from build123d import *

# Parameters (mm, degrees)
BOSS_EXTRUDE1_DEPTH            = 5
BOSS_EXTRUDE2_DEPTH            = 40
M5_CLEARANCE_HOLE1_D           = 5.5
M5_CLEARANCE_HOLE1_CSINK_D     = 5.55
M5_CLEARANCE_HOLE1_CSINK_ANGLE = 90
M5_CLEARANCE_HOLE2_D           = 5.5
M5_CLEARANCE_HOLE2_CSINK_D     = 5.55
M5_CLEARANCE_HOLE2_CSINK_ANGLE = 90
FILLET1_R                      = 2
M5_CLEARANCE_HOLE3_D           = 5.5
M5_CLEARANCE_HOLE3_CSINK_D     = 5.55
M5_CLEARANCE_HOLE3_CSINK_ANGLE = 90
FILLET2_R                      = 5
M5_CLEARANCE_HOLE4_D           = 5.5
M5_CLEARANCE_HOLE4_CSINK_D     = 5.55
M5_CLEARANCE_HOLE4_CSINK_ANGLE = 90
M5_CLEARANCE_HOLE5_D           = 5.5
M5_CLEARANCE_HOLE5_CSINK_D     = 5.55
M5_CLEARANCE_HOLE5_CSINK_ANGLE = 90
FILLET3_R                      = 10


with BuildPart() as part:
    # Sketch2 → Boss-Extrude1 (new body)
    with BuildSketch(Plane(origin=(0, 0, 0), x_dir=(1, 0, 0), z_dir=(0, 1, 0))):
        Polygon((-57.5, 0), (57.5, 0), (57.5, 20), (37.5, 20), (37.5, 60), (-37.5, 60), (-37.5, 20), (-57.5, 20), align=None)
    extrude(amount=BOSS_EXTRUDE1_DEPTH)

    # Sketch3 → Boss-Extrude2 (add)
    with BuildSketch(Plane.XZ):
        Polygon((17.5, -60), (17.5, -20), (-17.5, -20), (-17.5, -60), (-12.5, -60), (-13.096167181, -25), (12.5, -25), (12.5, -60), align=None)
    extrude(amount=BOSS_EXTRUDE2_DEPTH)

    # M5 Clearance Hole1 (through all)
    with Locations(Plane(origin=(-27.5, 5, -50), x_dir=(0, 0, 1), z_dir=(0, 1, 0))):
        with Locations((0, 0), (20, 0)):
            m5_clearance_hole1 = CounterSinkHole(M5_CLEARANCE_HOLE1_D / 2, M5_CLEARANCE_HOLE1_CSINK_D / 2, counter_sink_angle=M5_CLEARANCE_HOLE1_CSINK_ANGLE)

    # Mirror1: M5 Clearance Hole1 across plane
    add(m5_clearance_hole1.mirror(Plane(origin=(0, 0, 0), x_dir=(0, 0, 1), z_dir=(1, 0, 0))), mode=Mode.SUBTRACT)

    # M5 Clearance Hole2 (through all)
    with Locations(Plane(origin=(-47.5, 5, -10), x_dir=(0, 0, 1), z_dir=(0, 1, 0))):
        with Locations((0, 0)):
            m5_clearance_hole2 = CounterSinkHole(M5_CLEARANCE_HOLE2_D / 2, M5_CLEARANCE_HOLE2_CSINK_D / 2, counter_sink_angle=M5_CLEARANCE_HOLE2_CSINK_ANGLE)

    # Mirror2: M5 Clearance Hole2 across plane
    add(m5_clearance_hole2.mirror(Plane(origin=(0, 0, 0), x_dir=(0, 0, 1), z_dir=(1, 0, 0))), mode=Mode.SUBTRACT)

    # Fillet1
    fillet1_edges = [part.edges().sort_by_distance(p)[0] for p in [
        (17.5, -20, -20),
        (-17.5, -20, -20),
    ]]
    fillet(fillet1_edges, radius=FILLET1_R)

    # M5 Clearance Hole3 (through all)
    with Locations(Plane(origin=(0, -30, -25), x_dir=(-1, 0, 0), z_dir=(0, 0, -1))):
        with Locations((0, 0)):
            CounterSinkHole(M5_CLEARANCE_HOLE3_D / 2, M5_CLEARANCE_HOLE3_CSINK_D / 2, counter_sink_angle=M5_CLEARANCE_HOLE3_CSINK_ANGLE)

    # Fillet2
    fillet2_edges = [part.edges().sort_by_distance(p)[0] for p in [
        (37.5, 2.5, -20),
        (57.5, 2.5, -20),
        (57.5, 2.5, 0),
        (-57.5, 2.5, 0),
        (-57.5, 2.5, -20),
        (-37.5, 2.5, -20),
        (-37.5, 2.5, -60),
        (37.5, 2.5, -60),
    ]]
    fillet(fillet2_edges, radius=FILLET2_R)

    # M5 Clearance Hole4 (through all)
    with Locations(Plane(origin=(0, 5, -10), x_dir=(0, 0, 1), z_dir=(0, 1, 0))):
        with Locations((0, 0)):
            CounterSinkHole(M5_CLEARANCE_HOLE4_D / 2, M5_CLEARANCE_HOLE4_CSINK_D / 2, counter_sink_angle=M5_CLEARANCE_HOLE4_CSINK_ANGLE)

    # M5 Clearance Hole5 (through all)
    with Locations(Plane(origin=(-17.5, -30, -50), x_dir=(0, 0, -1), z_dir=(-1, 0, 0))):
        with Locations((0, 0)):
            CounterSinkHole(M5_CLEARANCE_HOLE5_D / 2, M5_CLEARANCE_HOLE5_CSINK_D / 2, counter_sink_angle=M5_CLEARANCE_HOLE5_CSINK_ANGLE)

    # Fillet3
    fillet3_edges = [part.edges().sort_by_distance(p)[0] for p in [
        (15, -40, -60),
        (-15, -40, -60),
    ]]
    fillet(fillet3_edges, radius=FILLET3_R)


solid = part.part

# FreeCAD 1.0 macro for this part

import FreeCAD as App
import Part
import Sketcher

V = App.Vector
Q = App.Units.Quantity


def edges_at(feature, points):
    """Names of the edges that pass closest to the given points."""
    edges = feature.Shape.Edges
    near = lambda p: min(range(len(edges)), key=lambda i: edges[i].distToShape(Part.Vertex(*p))[0])
    return sorted({f"Edge{near(p) + 1}" for p in points})


def add_polygon(sketch, points):
    """Adds a closed chain of lines whose ends are joined by coincident constraints."""
    first, n = sketch.GeometryCount, len(points)
    for a, b in zip(points, points[1:] + points[:1]):
        sketch.addGeometry(Part.LineSegment(App.Vector(*a, 0), App.Vector(*b, 0)), False)
    for i in range(n):
        sketch.addConstraint(Sketcher.Constraint("Coincident", first + i, 2, first + (i + 1) % n, 1))

doc = App.newDocument("Part")
body = doc.addObject("PartDesign::Body", "Body")

# Sketch on XZ plane
sketch1 = body.newObject("Sketcher::SketchObject", "Sketch")
sketch1.AttachmentSupport = (doc.getObject("XZ_Plane"), [""])
sketch1.MapMode = "FlatFace"
add_polygon(sketch1, [(-58, 0), (58, 0), (58, -20), (38, -20), (38, -60), (-38, -60), (-38, -20), (-58, -20)])  # lines 0-7
sketch1.addConstraint(Sketcher.Constraint("Horizontal", 0))
sketch1.addConstraint(Sketcher.Constraint("Vertical", 1))
sketch1.addConstraint(Sketcher.Constraint("Horizontal", 2))
sketch1.addConstraint(Sketcher.Constraint("Vertical", 3))
sketch1.addConstraint(Sketcher.Constraint("Horizontal", 4))
sketch1.addConstraint(Sketcher.Constraint("Vertical", 5))
sketch1.addConstraint(Sketcher.Constraint("Horizontal", 6))
sketch1.addConstraint(Sketcher.Constraint("Vertical", 7))
sketch1.addConstraint(Sketcher.Constraint("Symmetric", 0, 2, 7, 2, -1, 1))
sketch1.addConstraint(Sketcher.Constraint("Symmetric", 2, 2, 5, 2, -2))
sketch1.addConstraint(Sketcher.Constraint("Equal", 6, 1))
sketch1.addConstraint(Sketcher.Constraint("DistanceX", 0, 1, 0, 2, Q("115 mm")))
sketch1.addConstraint(Sketcher.Constraint("DistanceX", 2, 2, 2, 1, Q("20 mm")))
sketch1.addConstraint(Sketcher.Constraint("DistanceY", 3, 2, 3, 1, Q("40 mm")))
pad1 = body.newObject("PartDesign::Pad", "Pad")
pad1.Profile = sketch1
pad1.Length = 5
pad1.Reversed = True

# Sketch on XZ plane
sketch2 = body.newObject("Sketcher::SketchObject", "Sketch001")
sketch2.AttachmentSupport = (doc.getObject("XZ_Plane"), [""])
sketch2.MapMode = "FlatFace"
add_polygon(sketch2, [(18, -60), (18, -20), (-18, -20), (-18, -60), (-12, -60), (-13, -25), (12, -25), (12, -60)])  # lines 0-7
sketch2.addConstraint(Sketcher.Constraint("Vertical", 0))
sketch2.addConstraint(Sketcher.Constraint("Horizontal", 1))
sketch2.addConstraint(Sketcher.Constraint("Vertical", 2))
sketch2.addConstraint(Sketcher.Constraint("Horizontal", 3))
sketch2.addConstraint(Sketcher.Constraint("Horizontal", 5))
sketch2.addConstraint(Sketcher.Constraint("Vertical", 6))
sketch2.addConstraint(Sketcher.Constraint("Horizontal", 7))
sketch2.addConstraint(Sketcher.Constraint("Symmetric", 3, 2, 6, 2, -2))
sketch2.addConstraint(Sketcher.Constraint("Equal", 3, 7))
sketch2.addConstraint(Sketcher.Constraint("Equal", 1, 6))
sketch2.addConstraint(Sketcher.Constraint("DistanceX", 1, 2, 1, 1, Q("35 mm")))
sketch2.addConstraint(Sketcher.Constraint("DistanceX", 3, 1, 3, 2, Q("5 mm")))
sketch2.addConstraint(Sketcher.Constraint("DistanceY", 0, 1, 0, 2, Q("40 mm")))
sketch2.addConstraint(Sketcher.Constraint("DistanceY", 0, 2, -1, 1, Q("20 mm")))
sketch2.addConstraint(Sketcher.Constraint("DistanceX", 5, 1, 5, 2, Q("25.596167 mm")))
pad2 = body.newObject("PartDesign::Pad", "Pad001")
pad2.Profile = sketch2
pad2.Length = 40

# Sketch on XZ plane
sketch3 = body.newObject("Sketcher::SketchObject", "Sketch002")
sketch3.AttachmentSupport = (doc.getObject("XZ_Plane"), [""])
sketch3.MapMode = "FlatFace"
sketch3.AttachmentOffset = App.Placement(V(0, 0, -5), App.Rotation())
sketch3.addGeometry(Part.Circle(V(-27.5, -50, 0), V(0, 0, 1), 2.8), False)
sketch3.addGeometry(Part.Circle(V(-27.5, -30, 0), V(0, 0, 1), 2.8), False)
sketch3.addConstraint(Sketcher.Constraint("Equal", 0, 1))
sketch3.addConstraint(Sketcher.Constraint("Vertical", 0, 3, 1, 3))
sketch3.addConstraint(Sketcher.Constraint("Diameter", 0, Q("5.5 mm")))
sketch3.addConstraint(Sketcher.Constraint("DistanceY", 0, 3, -1, 1, Q("50 mm")))
sketch3.addConstraint(Sketcher.Constraint("DistanceY", 1, 3, -1, 1, Q("30 mm")))
sketch3.addConstraint(Sketcher.Constraint("DistanceX", 0, 3, -1, 1, Q("27.5 mm")))
doc.recompute()
hole = body.newObject("PartDesign::Hole", "Hole")
hole.Profile = sketch3
hole.ThreadType = "None"
hole.Diameter = 5.5
hole.DepthType = "ThroughAll"
hole.HoleCutType = "Countersink"
hole.HoleCutDiameter = 5.55
hole.HoleCutCountersinkAngle = 90
hole.Reversed = True
doc.recompute()

mirrored = body.newObject("PartDesign::Mirrored", "Mirrored")
mirrored.Originals = [hole]
mirrored.MirrorPlane = (doc.getObject("YZ_Plane"), [""])
body.Tip = mirrored

# Sketch on XZ plane
sketch4 = body.newObject("Sketcher::SketchObject", "Sketch003")
sketch4.AttachmentSupport = (doc.getObject("XZ_Plane"), [""])
sketch4.MapMode = "FlatFace"
sketch4.AttachmentOffset = App.Placement(V(0, 0, -5), App.Rotation())
sketch4.addGeometry(Part.Circle(V(-47.5, -10, 0), V(0, 0, 1), 2.8), False)
sketch4.addConstraint(Sketcher.Constraint("Diameter", 0, Q("5.5 mm")))
sketch4.addConstraint(Sketcher.Constraint("DistanceY", 0, 3, -1, 1, Q("10 mm")))
sketch4.addConstraint(Sketcher.Constraint("DistanceX", 0, 3, -1, 1, Q("47.5 mm")))
doc.recompute()
hole2 = body.newObject("PartDesign::Hole", "Hole001")
hole2.Profile = sketch4
hole2.ThreadType = "None"
hole2.Diameter = 5.5
hole2.DepthType = "ThroughAll"
hole2.HoleCutType = "Countersink"
hole2.HoleCutDiameter = 5.55
hole2.HoleCutCountersinkAngle = 90
hole2.Reversed = True
doc.recompute()

mirrored2 = body.newObject("PartDesign::Mirrored", "Mirrored001")
mirrored2.Originals = [hole2]
mirrored2.MirrorPlane = (doc.getObject("YZ_Plane"), [""])
body.Tip = mirrored2
doc.recompute()

fillet = body.newObject("PartDesign::Fillet", "Fillet")
fillet.Base = (mirrored2, edges_at(mirrored2, [(17.5, -20, -20), (-17.5, -20, -20)]))
fillet.Radius = 2

# Sketch on XY plane
sketch5 = body.newObject("Sketcher::SketchObject", "Sketch004")
sketch5.AttachmentSupport = (doc.getObject("XY_Plane"), [""])
sketch5.MapMode = "FlatFace"
sketch5.AttachmentOffset = App.Placement(V(0, 0, -25), App.Rotation())
sketch5.addGeometry(Part.Circle(V(0, -30, 0), V(0, 0, 1), 2.8), False)
sketch5.addConstraint(Sketcher.Constraint("PointOnObject", 0, 3, -2))
sketch5.addConstraint(Sketcher.Constraint("Diameter", 0, Q("5.5 mm")))
sketch5.addConstraint(Sketcher.Constraint("DistanceY", 0, 3, -1, 1, Q("30 mm")))
doc.recompute()
hole3 = body.newObject("PartDesign::Hole", "Hole002")
hole3.Profile = sketch5
hole3.ThreadType = "None"
hole3.Diameter = 5.5
hole3.DepthType = "ThroughAll"
hole3.HoleCutType = "Countersink"
hole3.HoleCutDiameter = 5.55
hole3.HoleCutCountersinkAngle = 90
hole3.Reversed = True
doc.recompute()

fillet2 = body.newObject("PartDesign::Fillet", "Fillet001")
fillet2.Base = (hole3, edges_at(hole3, [
    (37.5, 2.5, -20),
    (57.5, 2.5, -20),
    (57.5, 2.5, 0),
    (-57.5, 2.5, 0),
    (-57.5, 2.5, -20),
    (-37.5, 2.5, -20),
    (-37.5, 2.5, -60),
    (37.5, 2.5, -60),
]))
fillet2.Radius = 5

# Sketch on XZ plane
sketch6 = body.newObject("Sketcher::SketchObject", "Sketch005")
sketch6.AttachmentSupport = (doc.getObject("XZ_Plane"), [""])
sketch6.MapMode = "FlatFace"
sketch6.AttachmentOffset = App.Placement(V(0, 0, -5), App.Rotation())
sketch6.addGeometry(Part.Circle(V(0, -10, 0), V(0, 0, 1), 2.8), False)
sketch6.addConstraint(Sketcher.Constraint("PointOnObject", 0, 3, -2))
sketch6.addConstraint(Sketcher.Constraint("Diameter", 0, Q("5.5 mm")))
sketch6.addConstraint(Sketcher.Constraint("DistanceY", 0, 3, -1, 1, Q("10 mm")))
doc.recompute()
hole4 = body.newObject("PartDesign::Hole", "Hole003")
hole4.Profile = sketch6
hole4.ThreadType = "None"
hole4.Diameter = 5.5
hole4.DepthType = "ThroughAll"
hole4.HoleCutType = "Countersink"
hole4.HoleCutDiameter = 5.55
hole4.HoleCutCountersinkAngle = 90
hole4.Reversed = True

# Sketch on YZ plane
sketch7 = body.newObject("Sketcher::SketchObject", "Sketch006")
sketch7.AttachmentSupport = (doc.getObject("YZ_Plane"), [""])
sketch7.MapMode = "FlatFace"
sketch7.AttachmentOffset = App.Placement(V(0, 0, -17.5), App.Rotation())
sketch7.addGeometry(Part.Circle(V(-30, -50, 0), V(0, 0, 1), 2.8), False)
sketch7.addConstraint(Sketcher.Constraint("Diameter", 0, Q("5.5 mm")))
sketch7.addConstraint(Sketcher.Constraint("DistanceX", 0, 3, -1, 1, Q("30 mm")))
sketch7.addConstraint(Sketcher.Constraint("DistanceY", 0, 3, -1, 1, Q("50 mm")))
doc.recompute()
hole5 = body.newObject("PartDesign::Hole", "Hole004")
hole5.Profile = sketch7
hole5.ThreadType = "None"
hole5.Diameter = 5.5
hole5.DepthType = "ThroughAll"
hole5.HoleCutType = "Countersink"
hole5.HoleCutDiameter = 5.55
hole5.HoleCutCountersinkAngle = 90
hole5.Reversed = True
doc.recompute()

fillet3 = body.newObject("PartDesign::Fillet", "Fillet002")
fillet3.Base = (hole5, edges_at(hole5, [(15, -40, -60), (-15, -40, -60)]))
fillet3.Radius = 10

doc.recompute()
